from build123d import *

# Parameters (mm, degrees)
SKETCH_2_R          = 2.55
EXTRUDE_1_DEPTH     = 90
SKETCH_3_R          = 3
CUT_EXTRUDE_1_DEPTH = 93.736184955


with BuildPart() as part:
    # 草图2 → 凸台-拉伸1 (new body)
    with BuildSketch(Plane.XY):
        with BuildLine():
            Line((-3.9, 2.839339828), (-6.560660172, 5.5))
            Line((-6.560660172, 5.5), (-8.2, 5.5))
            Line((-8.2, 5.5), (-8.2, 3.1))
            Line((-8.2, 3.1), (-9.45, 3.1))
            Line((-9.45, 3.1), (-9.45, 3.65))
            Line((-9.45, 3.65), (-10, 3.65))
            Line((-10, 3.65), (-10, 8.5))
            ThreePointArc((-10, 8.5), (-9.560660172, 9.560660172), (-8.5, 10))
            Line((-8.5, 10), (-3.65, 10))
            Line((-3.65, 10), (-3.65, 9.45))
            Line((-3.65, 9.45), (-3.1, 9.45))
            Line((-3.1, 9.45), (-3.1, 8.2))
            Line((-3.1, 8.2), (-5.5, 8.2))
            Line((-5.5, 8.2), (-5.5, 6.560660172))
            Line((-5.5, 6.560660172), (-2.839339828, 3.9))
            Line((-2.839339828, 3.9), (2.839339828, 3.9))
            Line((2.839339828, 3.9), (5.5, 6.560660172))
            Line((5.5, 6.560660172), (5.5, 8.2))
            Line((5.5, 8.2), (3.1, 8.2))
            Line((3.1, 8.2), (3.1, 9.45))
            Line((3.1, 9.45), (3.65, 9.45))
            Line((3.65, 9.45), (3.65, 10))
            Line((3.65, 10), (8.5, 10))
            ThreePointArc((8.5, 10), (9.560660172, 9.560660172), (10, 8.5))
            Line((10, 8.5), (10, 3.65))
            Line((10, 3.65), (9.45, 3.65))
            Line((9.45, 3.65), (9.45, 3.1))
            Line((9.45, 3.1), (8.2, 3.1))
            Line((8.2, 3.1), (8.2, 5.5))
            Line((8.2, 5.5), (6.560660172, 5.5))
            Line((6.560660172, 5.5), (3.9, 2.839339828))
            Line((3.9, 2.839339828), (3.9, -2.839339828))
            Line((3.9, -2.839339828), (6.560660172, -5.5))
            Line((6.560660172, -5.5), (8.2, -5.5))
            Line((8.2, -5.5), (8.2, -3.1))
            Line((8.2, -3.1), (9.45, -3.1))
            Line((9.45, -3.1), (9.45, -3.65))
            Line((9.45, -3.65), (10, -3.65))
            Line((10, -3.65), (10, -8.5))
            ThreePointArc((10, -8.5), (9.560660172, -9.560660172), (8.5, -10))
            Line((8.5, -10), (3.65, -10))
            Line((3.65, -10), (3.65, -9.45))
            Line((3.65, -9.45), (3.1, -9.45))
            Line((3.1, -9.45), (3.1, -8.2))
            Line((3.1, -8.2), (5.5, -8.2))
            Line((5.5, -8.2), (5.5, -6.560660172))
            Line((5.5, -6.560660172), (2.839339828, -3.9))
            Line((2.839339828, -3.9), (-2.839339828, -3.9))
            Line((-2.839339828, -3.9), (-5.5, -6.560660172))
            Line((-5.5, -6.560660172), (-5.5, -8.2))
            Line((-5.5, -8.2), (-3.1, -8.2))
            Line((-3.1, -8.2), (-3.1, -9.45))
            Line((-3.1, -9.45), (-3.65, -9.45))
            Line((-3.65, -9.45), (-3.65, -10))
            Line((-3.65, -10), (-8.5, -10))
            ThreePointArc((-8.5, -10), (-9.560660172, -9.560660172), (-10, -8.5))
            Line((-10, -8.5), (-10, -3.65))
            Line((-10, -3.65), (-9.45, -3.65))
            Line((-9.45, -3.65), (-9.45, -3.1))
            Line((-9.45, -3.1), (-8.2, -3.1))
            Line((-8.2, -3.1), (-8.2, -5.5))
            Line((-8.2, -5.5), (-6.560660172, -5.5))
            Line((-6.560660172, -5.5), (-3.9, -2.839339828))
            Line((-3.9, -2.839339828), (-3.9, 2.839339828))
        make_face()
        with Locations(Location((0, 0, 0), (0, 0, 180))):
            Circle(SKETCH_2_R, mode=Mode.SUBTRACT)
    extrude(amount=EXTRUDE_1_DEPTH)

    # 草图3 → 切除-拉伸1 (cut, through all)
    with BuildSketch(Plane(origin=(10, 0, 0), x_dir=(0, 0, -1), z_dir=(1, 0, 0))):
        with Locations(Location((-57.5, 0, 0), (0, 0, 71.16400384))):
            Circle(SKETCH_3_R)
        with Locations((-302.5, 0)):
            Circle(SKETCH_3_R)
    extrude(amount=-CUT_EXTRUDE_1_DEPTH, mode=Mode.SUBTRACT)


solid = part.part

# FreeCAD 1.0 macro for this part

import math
import FreeCAD as App
import Part
import Sketcher
from FreeCAD import Vector
Q = App.Units.Quantity

doc = App.newDocument("Part")
body = doc.addObject("PartDesign::Body", "Body")

# Sketch on XY plane
sketch1 = doc.addObject("Sketcher::SketchObject", "Sketch")
body.addObject(sketch1)
sketch1.AttachmentSupport = (doc.XY_Plane, [""])
sketch1.MapMode = "FlatFace"
sketch1.addGeometry([
    Part.LineSegment(Vector(-6.6, 5.5, 0), Vector(-3.9, 2.8, 0)),  # 0
    Part.LineSegment(Vector(-3.9, 2.8, 0), Vector(-3.9, -2.8, 0)),  # 1
    Part.LineSegment(Vector(-3.9, -2.8, 0), Vector(-6.6, -5.5, 0)),  # 2
    Part.LineSegment(Vector(-6.6, -5.5, 0), Vector(-8.2, -5.5, 0)),  # 3
    Part.LineSegment(Vector(-8.2, -5.5, 0), Vector(-8.2, -3.1, 0)),  # 4
    Part.LineSegment(Vector(-8.2, -3.1, 0), Vector(-9.4, -3.1, 0)),  # 5
    Part.LineSegment(Vector(-9.4, -3.1, 0), Vector(-9.4, -3.6, 0)),  # 6
    Part.LineSegment(Vector(-9.4, -3.6, 0), Vector(-10, -3.6, 0)),  # 7
    Part.LineSegment(Vector(-10, -3.6, 0), Vector(-10, -8.5, 0)),  # 8
    Part.ArcOfCircle(Part.Circle(Vector(-8.5, -8.5, 0), Vector(0, 0, 1), 1.5), math.radians(180), math.radians(270)),  # 9
    Part.LineSegment(Vector(-8.5, -10, 0), Vector(-3.6, -10, 0)),  # 10
    Part.LineSegment(Vector(-3.6, -10, 0), Vector(-3.6, -9.4, 0)),  # 11
    Part.LineSegment(Vector(-3.6, -9.4, 0), Vector(-3.1, -9.4, 0)),  # 12
    Part.LineSegment(Vector(-3.1, -9.4, 0), Vector(-3.1, -8.2, 0)),  # 13
    Part.LineSegment(Vector(-3.1, -8.2, 0), Vector(-5.5, -8.2, 0)),  # 14
    Part.LineSegment(Vector(-5.5, -8.2, 0), Vector(-5.5, -6.6, 0)),  # 15
    Part.LineSegment(Vector(-5.5, -6.6, 0), Vector(-2.8, -3.9, 0)),  # 16
    Part.LineSegment(Vector(-2.8, -3.9, 0), Vector(2.8, -3.9, 0)),  # 17
    Part.LineSegment(Vector(2.8, -3.9, 0), Vector(5.5, -6.6, 0)),  # 18
    Part.LineSegment(Vector(5.5, -6.6, 0), Vector(5.5, -8.2, 0)),  # 19
    Part.LineSegment(Vector(5.5, -8.2, 0), Vector(3.1, -8.2, 0)),  # 20
    Part.LineSegment(Vector(3.1, -8.2, 0), Vector(3.1, -9.4, 0)),  # 21
    Part.LineSegment(Vector(3.1, -9.4, 0), Vector(3.6, -9.4, 0)),  # 22
    Part.LineSegment(Vector(3.6, -9.4, 0), Vector(3.6, -10, 0)),  # 23
    Part.LineSegment(Vector(3.6, -10, 0), Vector(8.5, -10, 0)),  # 24
    Part.ArcOfCircle(Part.Circle(Vector(8.5, -8.5, 0), Vector(0, 0, 1), 1.5), math.radians(-90), math.radians(0)),  # 25
    Part.LineSegment(Vector(10, -8.5, 0), Vector(10, -3.6, 0)),  # 26
    Part.LineSegment(Vector(10, -3.6, 0), Vector(9.4, -3.6, 0)),  # 27
    Part.LineSegment(Vector(9.4, -3.6, 0), Vector(9.4, -3.1, 0)),  # 28
    Part.LineSegment(Vector(9.4, -3.1, 0), Vector(8.2, -3.1, 0)),  # 29
    Part.LineSegment(Vector(8.2, -3.1, 0), Vector(8.2, -5.5, 0)),  # 30
    Part.LineSegment(Vector(8.2, -5.5, 0), Vector(6.6, -5.5, 0)),  # 31
    Part.LineSegment(Vector(6.6, -5.5, 0), Vector(3.9, -2.8, 0)),  # 32
    Part.LineSegment(Vector(3.9, -2.8, 0), Vector(3.9, 2.8, 0)),  # 33
    Part.LineSegment(Vector(3.9, 2.8, 0), Vector(6.6, 5.5, 0)),  # 34
    Part.LineSegment(Vector(6.6, 5.5, 0), Vector(8.2, 5.5, 0)),  # 35
    Part.LineSegment(Vector(8.2, 5.5, 0), Vector(8.2, 3.1, 0)),  # 36
    Part.LineSegment(Vector(8.2, 3.1, 0), Vector(9.4, 3.1, 0)),  # 37
    Part.LineSegment(Vector(9.4, 3.1, 0), Vector(9.4, 3.6, 0)),  # 38
    Part.LineSegment(Vector(9.4, 3.6, 0), Vector(10, 3.6, 0)),  # 39
    Part.LineSegment(Vector(10, 3.6, 0), Vector(10, 8.5, 0)),  # 40
    Part.ArcOfCircle(Part.Circle(Vector(8.5, 8.5, 0), Vector(0, 0, 1), 1.5), math.radians(0), math.radians(90)),  # 41
    Part.LineSegment(Vector(8.5, 10, 0), Vector(3.6, 10, 0)),  # 42
    Part.LineSegment(Vector(3.6, 10, 0), Vector(3.6, 9.4, 0)),  # 43
    Part.LineSegment(Vector(3.6, 9.4, 0), Vector(3.1, 9.4, 0)),  # 44
    Part.LineSegment(Vector(3.1, 9.4, 0), Vector(3.1, 8.2, 0)),  # 45
    Part.LineSegment(Vector(3.1, 8.2, 0), Vector(5.5, 8.2, 0)),  # 46
    Part.LineSegment(Vector(5.5, 8.2, 0), Vector(5.5, 6.6, 0)),  # 47
    Part.LineSegment(Vector(5.5, 6.6, 0), Vector(2.8, 3.9, 0)),  # 48
    Part.LineSegment(Vector(2.8, 3.9, 0), Vector(-2.8, 3.9, 0)),  # 49
    Part.LineSegment(Vector(-2.8, 3.9, 0), Vector(-5.5, 6.6, 0)),  # 50
    Part.LineSegment(Vector(-5.5, 6.6, 0), Vector(-5.5, 8.2, 0)),  # 51
    Part.LineSegment(Vector(-5.5, 8.2, 0), Vector(-3.1, 8.2, 0)),  # 52
    Part.LineSegment(Vector(-3.1, 8.2, 0), Vector(-3.1, 9.4, 0)),  # 53
    Part.LineSegment(Vector(-3.1, 9.4, 0), Vector(-3.6, 9.4, 0)),  # 54
    Part.LineSegment(Vector(-3.6, 9.4, 0), Vector(-3.6, 10, 0)),  # 55
    Part.LineSegment(Vector(-3.6, 10, 0), Vector(-8.5, 10, 0)),  # 56
    Part.ArcOfCircle(Part.Circle(Vector(-8.5, 8.5, 0), Vector(0, 0, 1), 1.5), math.radians(90), math.radians(180)),  # 57
    Part.LineSegment(Vector(-10, 8.5, 0), Vector(-10, 3.6, 0)),  # 58
    Part.LineSegment(Vector(-10, 3.6, 0), Vector(-9.4, 3.6, 0)),  # 59
    Part.LineSegment(Vector(-9.4, 3.6, 0), Vector(-9.4, 3.1, 0)),  # 60
    Part.LineSegment(Vector(-9.4, 3.1, 0), Vector(-8.2, 3.1, 0)),  # 61
    Part.LineSegment(Vector(-8.2, 3.1, 0), Vector(-8.2, 5.5, 0)),  # 62
    Part.LineSegment(Vector(-8.2, 5.5, 0), Vector(-6.6, 5.5, 0)),  # 63
    Part.Circle(Vector(0, 0, 0), Vector(0, 0, 1), 2.5),  # 64
], False)
sketch1.addConstraint([
    Sketcher.Constraint("Coincident", 0, 2, 1, 1),
    Sketcher.Constraint("Coincident", 1, 2, 2, 1),
    Sketcher.Constraint("Coincident", 2, 2, 3, 1),
    Sketcher.Constraint("Coincident", 3, 2, 4, 1),
    Sketcher.Constraint("Coincident", 4, 2, 5, 1),
    Sketcher.Constraint("Coincident", 5, 2, 6, 1),
    Sketcher.Constraint("Coincident", 6, 2, 7, 1),
    Sketcher.Constraint("Coincident", 7, 2, 8, 1),
    Sketcher.Constraint("Tangent", 8, 2, 9, 1),
    Sketcher.Constraint("Tangent", 9, 2, 10, 1),
    Sketcher.Constraint("Coincident", 10, 2, 11, 1),
    Sketcher.Constraint("Coincident", 11, 2, 12, 1),
    Sketcher.Constraint("Coincident", 12, 2, 13, 1),
    Sketcher.Constraint("Coincident", 13, 2, 14, 1),
    Sketcher.Constraint("Coincident", 14, 2, 15, 1),
    Sketcher.Constraint("Coincident", 15, 2, 16, 1),
    Sketcher.Constraint("Coincident", 16, 2, 17, 1),
    Sketcher.Constraint("Coincident", 17, 2, 18, 1),
    Sketcher.Constraint("Coincident", 18, 2, 19, 1),
    Sketcher.Constraint("Coincident", 19, 2, 20, 1),
    Sketcher.Constraint("Coincident", 20, 2, 21, 1),
    Sketcher.Constraint("Coincident", 21, 2, 22, 1),
    Sketcher.Constraint("Coincident", 22, 2, 23, 1),
    Sketcher.Constraint("Coincident", 23, 2, 24, 1),
    Sketcher.Constraint("Tangent", 24, 2, 25, 1),
    Sketcher.Constraint("Tangent", 25, 2, 26, 1),
    Sketcher.Constraint("Coincident", 26, 2, 27, 1),
    Sketcher.Constraint("Coincident", 27, 2, 28, 1),
    Sketcher.Constraint("Coincident", 28, 2, 29, 1),
    Sketcher.Constraint("Coincident", 29, 2, 30, 1),
    Sketcher.Constraint("Coincident", 30, 2, 31, 1),
    Sketcher.Constraint("Coincident", 31, 2, 32, 1),
    Sketcher.Constraint("Coincident", 32, 2, 33, 1),
    Sketcher.Constraint("Coincident", 33, 2, 34, 1),
    Sketcher.Constraint("Coincident", 34, 2, 35, 1),
    Sketcher.Constraint("Coincident", 35, 2, 36, 1),
    Sketcher.Constraint("Coincident", 36, 2, 37, 1),
    Sketcher.Constraint("Coincident", 37, 2, 38, 1),
    Sketcher.Constraint("Coincident", 38, 2, 39, 1),
    Sketcher.Constraint("Coincident", 39, 2, 40, 1),
    Sketcher.Constraint("Tangent", 40, 2, 41, 1),
    Sketcher.Constraint("Tangent", 41, 2, 42, 1),
    Sketcher.Constraint("Coincident", 42, 2, 43, 1),
    Sketcher.Constraint("Coincident", 43, 2, 44, 1),
    Sketcher.Constraint("Coincident", 44, 2, 45, 1),
    Sketcher.Constraint("Coincident", 45, 2, 46, 1),
    Sketcher.Constraint("Coincident", 46, 2, 47, 1),
    Sketcher.Constraint("Coincident", 47, 2, 48, 1),
    Sketcher.Constraint("Coincident", 48, 2, 49, 1),
    Sketcher.Constraint("Coincident", 49, 2, 50, 1),
    Sketcher.Constraint("Coincident", 50, 2, 51, 1),
    Sketcher.Constraint("Coincident", 51, 2, 52, 1),
    Sketcher.Constraint("Coincident", 52, 2, 53, 1),
    Sketcher.Constraint("Coincident", 53, 2, 54, 1),
    Sketcher.Constraint("Coincident", 54, 2, 55, 1),
    Sketcher.Constraint("Coincident", 55, 2, 56, 1),
    Sketcher.Constraint("Tangent", 56, 2, 57, 1),
    Sketcher.Constraint("Tangent", 57, 2, 58, 1),
    Sketcher.Constraint("Coincident", 58, 2, 59, 1),
    Sketcher.Constraint("Coincident", 59, 2, 60, 1),
    Sketcher.Constraint("Coincident", 60, 2, 61, 1),
    Sketcher.Constraint("Coincident", 61, 2, 62, 1),
    Sketcher.Constraint("Coincident", 62, 2, 63, 1),
    Sketcher.Constraint("Coincident", 63, 2, 0, 1),
    Sketcher.Constraint("Vertical", 1),
    Sketcher.Constraint("Horizontal", 3),
    Sketcher.Constraint("Vertical", 4),
    Sketcher.Constraint("Horizontal", 5),
    Sketcher.Constraint("Vertical", 6),
    Sketcher.Constraint("Horizontal", 7),
    Sketcher.Constraint("Vertical", 8),
    Sketcher.Constraint("Horizontal", 10),
    Sketcher.Constraint("Vertical", 11),
    Sketcher.Constraint("Horizontal", 12),
    Sketcher.Constraint("Vertical", 13),
    Sketcher.Constraint("Horizontal", 14),
    Sketcher.Constraint("Vertical", 15),
    Sketcher.Constraint("Horizontal", 17),
    Sketcher.Constraint("Vertical", 19),
    Sketcher.Constraint("Horizontal", 20),
    Sketcher.Constraint("Vertical", 21),
    Sketcher.Constraint("Horizontal", 22),
    Sketcher.Constraint("Vertical", 23),
    Sketcher.Constraint("Horizontal", 24),
    Sketcher.Constraint("Vertical", 26),
    Sketcher.Constraint("Horizontal", 27),
    Sketcher.Constraint("Vertical", 28),
    Sketcher.Constraint("Horizontal", 29),
    Sketcher.Constraint("Vertical", 30),
    Sketcher.Constraint("Horizontal", 31),
    Sketcher.Constraint("Vertical", 33),
    Sketcher.Constraint("Horizontal", 35),
    Sketcher.Constraint("Vertical", 36),
    Sketcher.Constraint("Horizontal", 37),
    Sketcher.Constraint("Vertical", 38),
    Sketcher.Constraint("Horizontal", 39),
    Sketcher.Constraint("Vertical", 40),
    Sketcher.Constraint("Horizontal", 42),
    Sketcher.Constraint("Vertical", 43),
    Sketcher.Constraint("Horizontal", 44),
    Sketcher.Constraint("Vertical", 45),
    Sketcher.Constraint("Horizontal", 46),
    Sketcher.Constraint("Vertical", 47),
    Sketcher.Constraint("Horizontal", 49),
    Sketcher.Constraint("Vertical", 51),
    Sketcher.Constraint("Horizontal", 52),
    Sketcher.Constraint("Vertical", 53),
    Sketcher.Constraint("Horizontal", 54),
    Sketcher.Constraint("Vertical", 55),
    Sketcher.Constraint("Horizontal", 56),
    Sketcher.Constraint("Vertical", 58),
    Sketcher.Constraint("Horizontal", 59),
    Sketcher.Constraint("Vertical", 60),
    Sketcher.Constraint("Horizontal", 61),
    Sketcher.Constraint("Vertical", 62),
    Sketcher.Constraint("Horizontal", 63),
    Sketcher.Constraint("Coincident", 64, 3, -1, 1),
    Sketcher.Constraint("Equal", 9, 25),
    Sketcher.Constraint("Equal", 25, 41),
    Sketcher.Constraint("Equal", 41, 57),
    Sketcher.Constraint("Symmetric", 9, 3, 41, 3, -1, 1),
    Sketcher.Constraint("Symmetric", 25, 3, 57, 3, -1, 1),
    Sketcher.Constraint("Symmetric", 0, 2, 32, 2, -1, 1),
    Sketcher.Constraint("Symmetric", 2, 2, 34, 2, -1, 1),
    Sketcher.Constraint("Symmetric", 4, 2, 36, 2, -1, 1),
    Sketcher.Constraint("Symmetric", 6, 2, 38, 2, -1, 1),
    Sketcher.Constraint("Symmetric", 11, 2, 43, 2, -1, 1),
    Sketcher.Constraint("Symmetric", 13, 2, 45, 2, -1, 1),
    Sketcher.Constraint("Symmetric", 15, 2, 47, 2, -1, 1),
    Sketcher.Constraint("Symmetric", 16, 2, 48, 2, -1, 1),
    Sketcher.Constraint("Symmetric", 18, 2, 50, 2, -1, 1),
    Sketcher.Constraint("Symmetric", 20, 2, 52, 2, -1, 1),
    Sketcher.Constraint("Symmetric", 22, 2, 54, 2, -1, 1),
    Sketcher.Constraint("Symmetric", 27, 2, 59, 2, -1, 1),
    Sketcher.Constraint("Symmetric", 29, 2, 61, 2, -1, 1),
    Sketcher.Constraint("Symmetric", 31, 2, 63, 2, -1, 1),
    Sketcher.Constraint("Symmetric", 9, 3, 25, 3, -2),
    Sketcher.Constraint("Symmetric", 15, 2, 18, 2, -2),
    Sketcher.Constraint("Symmetric", 13, 2, 20, 2, -2),
    Sketcher.Constraint("Symmetric", 11, 2, 22, 2, -2),
    Sketcher.Constraint("Symmetric", 6, 2, 27, 2, -2),
    Sketcher.Constraint("Symmetric", 4, 2, 29, 2, -2),
    Sketcher.Constraint("Symmetric", 2, 2, 31, 2, -2),
    Sketcher.Constraint("Perpendicular", 0, 2),
    Sketcher.Constraint("Parallel", 2, 16),
    Sketcher.Constraint("Perpendicular", 16, 18),
    Sketcher.Constraint("Perpendicular", 32, 34),
    Sketcher.Constraint("Perpendicular", 48, 50),
    Sketcher.Constraint("Horizontal", 1, 2, 32, 2),
    Sketcher.Constraint("Equal", 7, 12),
    Sketcher.Constraint("Equal", 49, 1),
    Sketcher.Constraint("Equal", 52, 4),
    Sketcher.Constraint("Equal", 59, 6),
    Sketcher.Constraint("Equal", 56, 8),
    Sketcher.Constraint("Equal", 6, 11),
    Sketcher.Constraint("Equal", 61, 13),
    Sketcher.Constraint("Equal", 63, 15),
    Sketcher.Constraint("Equal", 2, 16),
    Sketcher.Constraint("Diameter", 64, Q("5.1 mm")),
    Sketcher.Constraint("Radius", 9, Q("1.5 mm")),
    Sketcher.Constraint("DistanceX", 14, 2, 14, 1, Q("2.4 mm")),
    Sketcher.Constraint("DistanceX", 7, 2, -1, 1, Q("10 mm")),
    Sketcher.Constraint("DistanceX", 5, 2, 5, 1, Q("1.25 mm")),
    Sketcher.Constraint("DistanceX", 7, 2, 7, 1, Q("0.55 mm")),
    Sketcher.Constraint("DistanceX", 10, 1, 10, 2, Q("4.85 mm")),
    Sketcher.Constraint("DistanceX", 0, 2, -1, 1, Q("3.9 mm")),
    Sketcher.Constraint("DistanceX", 3, 2, 3, 1, Q("1.63934 mm")),
])
pad1 = doc.addObject("PartDesign::Pad", "Pad")
body.addObject(pad1)
pad1.Profile = sketch1
pad1.Length = 90

# Sketch on YZ plane
sketch2 = doc.addObject("Sketcher::SketchObject", "Sketch001")
body.addObject(sketch2)
sketch2.AttachmentSupport = (doc.YZ_Plane, [""])
sketch2.MapMode = "FlatFace"
sketch2.AttachmentOffset = App.Placement(Vector(0, 0, 10), App.Rotation())
sketch2.addGeometry([
    Part.Circle(Vector(0, 57.5, 0), Vector(0, 0, 1), 3),
    Part.Circle(Vector(0, 302.5, 0), Vector(0, 0, 1), 3),
], False)
sketch2.addConstraint([
    Sketcher.Constraint("Equal", 0, 1),
    Sketcher.Constraint("PointOnObject", 0, 3, -2),
    Sketcher.Constraint("PointOnObject", 1, 3, -2),
    Sketcher.Constraint("Diameter", 0, Q("6 mm")),
    Sketcher.Constraint("DistanceY", 0, 3, 1, 3, Q("245 mm")),
    Sketcher.Constraint("DistanceY", -1, 1, 0, 3, Q("57.5 mm")),
])
pocket1 = doc.addObject("PartDesign::Pocket", "Pocket")
body.addObject(pocket1)
pocket1.Profile = sketch2
pocket1.Type = "ThroughAll"

doc.recompute()
